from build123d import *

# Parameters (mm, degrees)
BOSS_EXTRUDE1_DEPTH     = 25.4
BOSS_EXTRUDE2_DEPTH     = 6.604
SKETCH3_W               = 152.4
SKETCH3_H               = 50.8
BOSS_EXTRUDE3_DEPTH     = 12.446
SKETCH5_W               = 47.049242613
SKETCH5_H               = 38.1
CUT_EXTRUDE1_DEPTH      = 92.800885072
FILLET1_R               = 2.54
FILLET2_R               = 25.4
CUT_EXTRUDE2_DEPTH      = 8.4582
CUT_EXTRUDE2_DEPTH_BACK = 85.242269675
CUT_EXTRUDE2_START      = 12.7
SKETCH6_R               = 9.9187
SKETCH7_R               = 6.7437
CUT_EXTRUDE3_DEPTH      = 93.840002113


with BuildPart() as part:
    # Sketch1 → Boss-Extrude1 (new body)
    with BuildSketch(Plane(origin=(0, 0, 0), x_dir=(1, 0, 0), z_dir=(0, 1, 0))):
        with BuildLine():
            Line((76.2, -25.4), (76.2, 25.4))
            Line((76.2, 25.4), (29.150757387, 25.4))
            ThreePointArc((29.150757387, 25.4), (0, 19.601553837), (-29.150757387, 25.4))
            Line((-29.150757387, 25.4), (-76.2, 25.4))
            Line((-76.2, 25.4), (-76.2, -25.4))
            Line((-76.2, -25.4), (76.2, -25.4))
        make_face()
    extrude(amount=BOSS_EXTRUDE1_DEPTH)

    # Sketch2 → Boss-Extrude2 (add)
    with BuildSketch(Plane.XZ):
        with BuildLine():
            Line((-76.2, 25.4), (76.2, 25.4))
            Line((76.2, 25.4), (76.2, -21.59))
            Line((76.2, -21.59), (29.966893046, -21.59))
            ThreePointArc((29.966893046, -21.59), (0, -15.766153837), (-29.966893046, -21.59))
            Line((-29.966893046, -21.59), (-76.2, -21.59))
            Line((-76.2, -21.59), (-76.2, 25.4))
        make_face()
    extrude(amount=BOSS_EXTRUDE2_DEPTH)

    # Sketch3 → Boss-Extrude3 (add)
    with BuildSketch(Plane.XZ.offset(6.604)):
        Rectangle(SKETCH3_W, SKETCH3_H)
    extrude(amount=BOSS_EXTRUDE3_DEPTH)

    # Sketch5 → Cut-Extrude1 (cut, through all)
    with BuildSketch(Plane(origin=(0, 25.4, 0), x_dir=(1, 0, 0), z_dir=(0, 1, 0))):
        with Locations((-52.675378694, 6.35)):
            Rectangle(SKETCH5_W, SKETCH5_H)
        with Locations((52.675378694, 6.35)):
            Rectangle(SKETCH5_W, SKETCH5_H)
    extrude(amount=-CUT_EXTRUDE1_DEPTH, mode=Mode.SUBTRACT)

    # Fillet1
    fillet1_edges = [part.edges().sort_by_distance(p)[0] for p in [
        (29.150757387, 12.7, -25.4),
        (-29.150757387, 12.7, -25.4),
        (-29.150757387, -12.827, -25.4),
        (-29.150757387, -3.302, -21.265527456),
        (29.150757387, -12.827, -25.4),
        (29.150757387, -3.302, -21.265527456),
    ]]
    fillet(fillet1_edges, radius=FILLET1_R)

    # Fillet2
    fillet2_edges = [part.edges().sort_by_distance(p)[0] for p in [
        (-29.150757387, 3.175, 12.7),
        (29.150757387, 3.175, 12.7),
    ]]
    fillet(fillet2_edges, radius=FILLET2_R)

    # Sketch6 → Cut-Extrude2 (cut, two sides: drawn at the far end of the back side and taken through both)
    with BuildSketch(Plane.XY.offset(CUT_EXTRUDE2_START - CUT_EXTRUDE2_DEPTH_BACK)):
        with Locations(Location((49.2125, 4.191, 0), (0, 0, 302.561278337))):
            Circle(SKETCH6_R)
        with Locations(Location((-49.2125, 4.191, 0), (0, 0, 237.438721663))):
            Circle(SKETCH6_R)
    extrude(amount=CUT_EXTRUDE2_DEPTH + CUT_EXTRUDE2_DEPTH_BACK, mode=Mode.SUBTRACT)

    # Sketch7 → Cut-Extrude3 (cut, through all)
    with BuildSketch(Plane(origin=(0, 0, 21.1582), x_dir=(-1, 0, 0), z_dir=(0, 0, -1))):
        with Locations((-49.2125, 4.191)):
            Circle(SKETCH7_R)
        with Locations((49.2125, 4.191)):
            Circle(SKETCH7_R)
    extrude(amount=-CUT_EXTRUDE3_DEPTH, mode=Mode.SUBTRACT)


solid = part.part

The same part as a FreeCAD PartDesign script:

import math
import FreeCAD as App
import Part
import Sketcher

V = App.Vector
Q = App.Units.Quantity


def edges_at(feature, points):
    """Names of the edges that pass closest to the given points."""
    edges = feature.Shape.Edges
    near = lambda p: min(range(len(edges)), key=lambda i: edges[i].distToShape(Part.Vertex(*p))[0])
    return sorted({f"Edge{near(p) + 1}" for p in points})


def add_polygon(sketch, points):
    """Adds a closed chain of lines whose ends are joined by coincident constraints."""
    first, n = sketch.GeometryCount, len(points)
    for a, b in zip(points, points[1:] + points[:1]):
        sketch.addGeometry(Part.LineSegment(App.Vector(*a, 0), App.Vector(*b, 0)), False)
    for i in range(n):
        sketch.addConstraint(Sketcher.Constraint("Coincident", first + i, 2, first + (i + 1) % n, 1))

doc = App.newDocument("Part")
body = doc.addObject("PartDesign::Body", "Body")

# Sketch on XZ plane
sketch1 = body.newObject("Sketcher::SketchObject", "Sketch")
sketch1.AttachmentSupport = (doc.getObject("XZ_Plane"), [""])
sketch1.MapMode = "FlatFace"
sketch1.addGeometry(Part.LineSegment(V(76, 25, 0), V(76, -25, 0)), False)
sketch1.addGeometry(Part.LineSegment(V(76, -25, 0), V(29, -25, 0)), False)
sketch1.addGeometry(Part.ArcOfCircle(Part.Circle(V(0, -96, 0), V(0, 0, 1), 76), math.radians(67), math.radians(113)), False)
sketch1.addGeometry(Part.LineSegment(V(-29, -25, 0), V(-76, -25, 0)), False)
sketch1.addGeometry(Part.LineSegment(V(-76, -25, 0), V(-76, 25, 0)), False)
sketch1.addGeometry(Part.LineSegment(V(-76, 25, 0), V(76, 25, 0)), False)
sketch1.addConstraint(Sketcher.Constraint("Coincident", 0, 2, 1, 1))
sketch1.addConstraint(Sketcher.Constraint("Coincident", 1, 2, 2, 1))
sketch1.addConstraint(Sketcher.Constraint("Coincident", 2, 2, 3, 1))
sketch1.addConstraint(Sketcher.Constraint("Coincident", 3, 2, 4, 1))
sketch1.addConstraint(Sketcher.Constraint("Coincident", 4, 2, 5, 1))
sketch1.addConstraint(Sketcher.Constraint("Coincident", 5, 2, 0, 1))
sketch1.addConstraint(Sketcher.Constraint("Vertical", 0))
sketch1.addConstraint(Sketcher.Constraint("Horizontal", 1))
sketch1.addConstraint(Sketcher.Constraint("Horizontal", 3))
sketch1.addConstraint(Sketcher.Constraint("Vertical", 4))
sketch1.addConstraint(Sketcher.Constraint("Horizontal", 5))
sketch1.addConstraint(Sketcher.Constraint("Symmetric", 0, 2, 4, 2, -1, 1))
sketch1.addConstraint(Sketcher.Constraint("Symmetric", 1, 2, 2, 2, -2))
sketch1.addConstraint(Sketcher.Constraint("DistanceX", 5, 1, 5, 2, Q("6 in")))
sketch1.addConstraint(Sketcher.Constraint("DistanceY", 0, 2, 0, 1, Q("2 in")))
sketch1.addConstraint(Sketcher.Constraint("Radius", 2, Q("2.999 in")))
sketch1.addConstraint(Sketcher.Constraint("DistanceX", 1, 2, 1, 1, Q("47.049243 mm")))
pad1 = body.newObject("PartDesign::Pad", "Pad")
pad1.Profile = sketch1
pad1.Length = Q("1 in")
pad1.Reversed = True

# Sketch on XZ plane
sketch2 = body.newObject("Sketcher::SketchObject", "Sketch001")
sketch2.AttachmentSupport = (doc.getObject("XZ_Plane"), [""])
sketch2.MapMode = "FlatFace"
sketch2.addGeometry(Part.LineSegment(V(76, 25, 0), V(-76, 25, 0)), False)
sketch2.addGeometry(Part.LineSegment(V(-76, 25, 0), V(-76, -22, 0)), False)
sketch2.addGeometry(Part.LineSegment(V(-76, -22, 0), V(-30, -22, 0)), False)
sketch2.addGeometry(Part.ArcOfCircle(Part.Circle(V(0, -96, 0), V(0, 0, 1), 80), math.radians(68), math.radians(112)), False)
sketch2.addGeometry(Part.LineSegment(V(30, -22, 0), V(76, -22, 0)), False)
sketch2.addGeometry(Part.LineSegment(V(76, -22, 0), V(76, 25, 0)), False)
sketch2.addConstraint(Sketcher.Constraint("Coincident", 0, 2, 1, 1))
sketch2.addConstraint(Sketcher.Constraint("Coincident", 1, 2, 2, 1))
sketch2.addConstraint(Sketcher.Constraint("Coincident", 2, 2, 3, 2))
sketch2.addConstraint(Sketcher.Constraint("Coincident", 3, 1, 4, 1))
sketch2.addConstraint(Sketcher.Constraint("Coincident", 4, 2, 5, 1))
sketch2.addConstraint(Sketcher.Constraint("Coincident", 5, 2, 0, 1))
sketch2.addConstraint(Sketcher.Constraint("Horizontal", 0))
sketch2.addConstraint(Sketcher.Constraint("Vertical", 1))
sketch2.addConstraint(Sketcher.Constraint("Horizontal", 2))
sketch2.addConstraint(Sketcher.Constraint("Horizontal", 4))
sketch2.addConstraint(Sketcher.Constraint("Vertical", 5))
sketch2.addConstraint(Sketcher.Constraint("Symmetric", 2, 2, 3, 1, -2))
sketch2.addConstraint(Sketcher.Constraint("Equal", 2, 4))
sketch2.addConstraint(Sketcher.Constraint("DistanceX", 0, 2, 0, 1, Q("6 in")))
sketch2.addConstraint(Sketcher.Constraint("Radius", 3, Q("3.15 in")))
sketch2.addConstraint(Sketcher.Constraint("DistanceY", -1, 1, 0, 2, Q("1 in")))
sketch2.addConstraint(Sketcher.Constraint("DistanceY", 1, 2, 1, 1, Q("1.85 in")))
sketch2.addConstraint(Sketcher.Constraint("DistanceX", 2, 1, 2, 2, Q("46.233107 mm")))
pad2 = body.newObject("PartDesign::Pad", "Pad001")
pad2.Profile = sketch2
pad2.Length = Q("0.26 in")

# Sketch on XZ plane
sketch3 = body.newObject("Sketcher::SketchObject", "Sketch002")
sketch3.AttachmentSupport = (doc.getObject("XZ_Plane"), [""])
sketch3.MapMode = "FlatFace"
sketch3.AttachmentOffset = App.Placement(V(0, 0, 0.26 * 25.4), App.Rotation())
add_polygon(sketch3, [(-76, 25), (-76, -25), (76, -25), (76, 25)])  # lines 0-3
sketch3.addConstraint(Sketcher.Constraint("Vertical", 0))
sketch3.addConstraint(Sketcher.Constraint("Horizontal", 1))
sketch3.addConstraint(Sketcher.Constraint("Vertical", 2))
sketch3.addConstraint(Sketcher.Constraint("Horizontal", 3))
sketch3.addConstraint(Sketcher.Constraint("Symmetric", 0, 2, 2, 2, -1, 1))
sketch3.addConstraint(Sketcher.Constraint("DistanceX", 1, 1, 1, 2, Q("6 in")))
sketch3.addConstraint(Sketcher.Constraint("DistanceY", 0, 2, 0, 1, Q("2 in")))
pad3 = body.newObject("PartDesign::Pad", "Pad002")
pad3.Profile = sketch3
pad3.Length = Q("0.49 in")

# Sketch on XZ plane
sketch4 = body.newObject("Sketcher::SketchObject", "Sketch003")
sketch4.AttachmentSupport = (doc.getObject("XZ_Plane"), [""])
sketch4.MapMode = "FlatFace"
sketch4.AttachmentOffset = App.Placement(V(0, 0, -1 * 25.4), App.Rotation())
add_polygon(sketch4, [(-76, -25), (-76, 13), (-29, 13), (-29, -25)])  # lines 0-3
add_polygon(sketch4, [(29, -25), (29, 13), (76, 13), (76, -25)])  # lines 4-7
sketch4.addConstraint(Sketcher.Constraint("Vertical", 0))
sketch4.addConstraint(Sketcher.Constraint("Horizontal", 1))
sketch4.addConstraint(Sketcher.Constraint("Vertical", 2))
sketch4.addConstraint(Sketcher.Constraint("Horizontal", 3))
sketch4.addConstraint(Sketcher.Constraint("Vertical", 4))
sketch4.addConstraint(Sketcher.Constraint("Horizontal", 5))
sketch4.addConstraint(Sketcher.Constraint("Vertical", 6))
sketch4.addConstraint(Sketcher.Constraint("Horizontal", 7))
sketch4.addConstraint(Sketcher.Constraint("Symmetric", 1, 2, 4, 2, -2))
sketch4.addConstraint(Sketcher.Constraint("Symmetric", 3, 2, 6, 2, -2))
sketch4.addConstraint(Sketcher.Constraint("DistanceY", 0, 1, 0, 2, Q("1.5 in")))
sketch4.addConstraint(Sketcher.Constraint("DistanceX", 0, 2, -1, 1, Q("3 in")))
sketch4.addConstraint(Sketcher.Constraint("DistanceY", 2, 2, -1, 1, Q("1 in")))
sketch4.addConstraint(Sketcher.Constraint("DistanceX", 1, 1, 1, 2, Q("47.049243 mm")))
pocket1 = body.newObject("PartDesign::Pocket", "Pocket")
pocket1.Profile = sketch4
pocket1.Type = "ThroughAll"
pocket1.Reversed = True
doc.recompute()

fillet = body.newObject("PartDesign::Fillet", "Fillet")
fillet.Base = (pocket1, edges_at(pocket1, [
    (29.151, 12.7, -25.4),
    (-29.151, 12.7, -25.4),
    (-29.151, -12.827, -25.4),
    (-29.151, -3.302, -21.266),
    (29.151, -12.827, -25.4),
    (29.151, -3.302, -21.266),
]))
fillet.Radius = Q("0.1 in")
doc.recompute()

fillet2 = body.newObject("PartDesign::Fillet", "Fillet001")
fillet2.Base = (fillet, edges_at(fillet, [(-29.151, 3.175, 12.7), (29.151, 3.175, 12.7)]))
fillet2.Radius = Q("1 in")

# Sketch on XY plane
sketch5 = body.newObject("Sketcher::SketchObject", "Sketch004")
sketch5.AttachmentSupport = (doc.getObject("XY_Plane"), [""])
sketch5.MapMode = "FlatFace"
sketch5.AttachmentOffset = App.Placement(V(0, 0, 0.5 * 25.4), App.Rotation())
sketch5.addGeometry(Part.Circle(V(49, 4, 0), V(0, 0, 1), 10), False)
sketch5.addGeometry(Part.Circle(V(-49, 4, 0), V(0, 0, 1), 10), False)
sketch5.addConstraint(Sketcher.Constraint("Equal", 0, 1))
sketch5.addConstraint(Sketcher.Constraint("Symmetric", 0, 3, 1, 3, -2))
sketch5.addConstraint(Sketcher.Constraint("Diameter", 0, Q("0.781 in")))
sketch5.addConstraint(Sketcher.Constraint("DistanceX", -1, 1, 0, 3, Q("1.9375 in")))
sketch5.addConstraint(Sketcher.Constraint("DistanceY", -1, 1, 0, 3, Q("0.165 in")))
pocket2 = body.newObject("PartDesign::Pocket", "Pocket001")
pocket2.Profile = sketch5
pocket2.Type = "TwoLengths"
pocket2.Length = Q("0.333 in")
pocket2.Length2 = 85.24227
pocket2.Reversed = True

# Sketch on XY plane
sketch6 = body.newObject("Sketcher::SketchObject", "Sketch005")
sketch6.AttachmentSupport = (doc.getObject("XY_Plane"), [""])
sketch6.MapMode = "FlatFace"
sketch6.AttachmentOffset = App.Placement(V(0, 0, 0.833 * 25.4), App.Rotation())
sketch6.addGeometry(Part.Circle(V(49, 4, 0), V(0, 0, 1), 7), False)
sketch6.addGeometry(Part.Circle(V(-49, 4, 0), V(0, 0, 1), 7), False)
sketch6.addConstraint(Sketcher.Constraint("Equal", 0, 1))
sketch6.addConstraint(Sketcher.Constraint("Symmetric", 0, 3, 1, 3, -2))
sketch6.addConstraint(Sketcher.Constraint("Diameter", 0, Q("0.531 in")))
sketch6.addConstraint(Sketcher.Constraint("DistanceX", -1, 1, 0, 3, Q("1.9375 in")))
sketch6.addConstraint(Sketcher.Constraint("DistanceY", -1, 1, 0, 3, Q("0.165 in")))
pocket3 = body.newObject("PartDesign::Pocket", "Pocket002")
pocket3.Profile = sketch6
pocket3.Type = "ThroughAll"
pocket3.Reversed = True

doc.recompute()
